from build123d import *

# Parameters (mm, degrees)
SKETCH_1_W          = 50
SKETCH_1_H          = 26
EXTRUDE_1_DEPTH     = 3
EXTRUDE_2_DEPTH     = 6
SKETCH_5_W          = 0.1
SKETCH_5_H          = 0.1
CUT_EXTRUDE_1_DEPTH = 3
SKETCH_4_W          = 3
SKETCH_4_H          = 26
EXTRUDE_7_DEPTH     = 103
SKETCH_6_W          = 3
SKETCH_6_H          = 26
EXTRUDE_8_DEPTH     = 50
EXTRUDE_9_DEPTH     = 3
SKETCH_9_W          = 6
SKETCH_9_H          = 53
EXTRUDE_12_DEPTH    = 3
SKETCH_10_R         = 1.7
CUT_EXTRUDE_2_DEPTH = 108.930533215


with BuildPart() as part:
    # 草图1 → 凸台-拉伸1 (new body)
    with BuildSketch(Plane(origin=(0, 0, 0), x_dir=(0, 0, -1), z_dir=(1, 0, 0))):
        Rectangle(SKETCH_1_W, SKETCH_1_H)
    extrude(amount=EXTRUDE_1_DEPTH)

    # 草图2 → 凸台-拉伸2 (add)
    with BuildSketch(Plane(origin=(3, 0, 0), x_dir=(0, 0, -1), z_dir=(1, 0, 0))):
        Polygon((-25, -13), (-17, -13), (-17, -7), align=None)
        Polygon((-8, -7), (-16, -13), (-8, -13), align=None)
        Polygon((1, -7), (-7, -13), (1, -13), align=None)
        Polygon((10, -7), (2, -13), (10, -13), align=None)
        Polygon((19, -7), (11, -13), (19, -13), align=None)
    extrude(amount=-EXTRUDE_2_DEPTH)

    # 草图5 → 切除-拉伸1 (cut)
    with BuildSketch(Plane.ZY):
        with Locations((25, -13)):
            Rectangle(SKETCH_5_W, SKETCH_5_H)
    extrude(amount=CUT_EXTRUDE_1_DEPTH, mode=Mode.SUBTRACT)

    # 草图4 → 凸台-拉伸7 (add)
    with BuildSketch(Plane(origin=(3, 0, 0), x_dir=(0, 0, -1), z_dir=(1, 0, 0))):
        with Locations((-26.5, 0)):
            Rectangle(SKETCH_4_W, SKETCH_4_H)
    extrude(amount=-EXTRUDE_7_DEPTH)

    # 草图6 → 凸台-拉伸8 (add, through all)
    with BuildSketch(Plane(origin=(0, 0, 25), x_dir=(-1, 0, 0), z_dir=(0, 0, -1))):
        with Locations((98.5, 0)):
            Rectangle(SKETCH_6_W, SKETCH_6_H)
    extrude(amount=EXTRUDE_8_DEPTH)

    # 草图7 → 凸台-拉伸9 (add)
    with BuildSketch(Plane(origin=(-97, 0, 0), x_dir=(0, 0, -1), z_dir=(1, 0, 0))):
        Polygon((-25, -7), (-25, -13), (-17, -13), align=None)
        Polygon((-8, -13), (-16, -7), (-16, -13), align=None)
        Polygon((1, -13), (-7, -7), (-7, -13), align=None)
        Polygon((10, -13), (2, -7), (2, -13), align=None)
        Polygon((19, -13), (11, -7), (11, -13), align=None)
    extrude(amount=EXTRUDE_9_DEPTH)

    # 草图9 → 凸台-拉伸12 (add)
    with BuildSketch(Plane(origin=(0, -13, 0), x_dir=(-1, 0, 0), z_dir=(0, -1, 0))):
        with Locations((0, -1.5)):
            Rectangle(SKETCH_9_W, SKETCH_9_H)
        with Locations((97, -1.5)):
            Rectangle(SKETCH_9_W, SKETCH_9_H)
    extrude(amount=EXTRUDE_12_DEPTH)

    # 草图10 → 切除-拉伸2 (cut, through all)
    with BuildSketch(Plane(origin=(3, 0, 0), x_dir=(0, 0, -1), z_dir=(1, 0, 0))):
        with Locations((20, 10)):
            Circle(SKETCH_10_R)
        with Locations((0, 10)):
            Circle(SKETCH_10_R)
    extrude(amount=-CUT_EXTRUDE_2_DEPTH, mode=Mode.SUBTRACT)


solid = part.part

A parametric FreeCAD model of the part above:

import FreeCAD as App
import Part
import Sketcher


def add_polygon(sketch, points):
    """Adds a closed chain of lines whose ends are joined by coincident constraints."""
    first, n = sketch.GeometryCount, len(points)
    for a, b in zip(points, points[1:] + points[:1]):
        sketch.addGeometry(Part.LineSegment(App.Vector(*a, 0), App.Vector(*b, 0)), False)
    for i in range(n):
        sketch.addConstraint(Sketcher.Constraint("Coincident", first + i, 2, first + (i + 1) % n, 1))

doc = App.newDocument("Part")
body = doc.addObject("PartDesign::Body", "Body")

sketch1 = body.newObject("Sketcher::SketchObject", "Sketch")
sketch1.AttachmentSupport = (doc.getObject("YZ_Plane"), [""])
sketch1.MapMode = "FlatFace"
add_polygon(sketch1, [(13, 25), (-13, 25), (-13, -25), (13, -25)])
sketch1.addConstraint(Sketcher.Constraint("Horizontal", 0))
sketch1.addConstraint(Sketcher.Constraint("Vertical", 1))
sketch1.addConstraint(Sketcher.Constraint("Horizontal", 2))
sketch1.addConstraint(Sketcher.Constraint("Vertical", 3))
sketch1.addConstraint(Sketcher.Constraint("Symmetric", 0, 2, 2, 2, -1, 1))
sketch1.addConstraint(Sketcher.Constraint("DistanceX", 0, 2, 0, 1, 26.0))
sketch1.addConstraint(Sketcher.Constraint("DistanceY", 1, 2, 1, 1, 50.0))
pad1 = body.newObject("PartDesign::Pad", "Pad")
pad1.Profile = sketch1
pad1.Length = 3

sketch2 = body.newObject("Sketcher::SketchObject", "Sketch001")
sketch2.AttachmentSupport = (doc.getObject("YZ_Plane"), [""])
sketch2.MapMode = "FlatFace"
sketch2.AttachmentOffset = App.Placement(App.Vector(0, 0, 3), App.Rotation())
add_polygon(sketch2, [(-13, 25), (-13, 17), (-7, 17)])
add_polygon(sketch2, [(-7, 8), (-13, 16), (-13, 8)])
add_polygon(sketch2, [(-7, -1), (-13, 7), (-13, -1)])
add_polygon(sketch2, [(-7, -10), (-13, -2), (-13, -10)])
add_polygon(sketch2, [(-7, -19), (-13, -11), (-13, -19)])
sketch2.addConstraint(Sketcher.Constraint("Vertical", 0))
sketch2.addConstraint(Sketcher.Constraint("Horizontal", 1))
sketch2.addConstraint(Sketcher.Constraint("Vertical", 4))
sketch2.addConstraint(Sketcher.Constraint("Horizontal", 5))
sketch2.addConstraint(Sketcher.Constraint("Vertical", 7))
sketch2.addConstraint(Sketcher.Constraint("Horizontal", 8))
sketch2.addConstraint(Sketcher.Constraint("Vertical", 10))
sketch2.addConstraint(Sketcher.Constraint("Horizontal", 11))
sketch2.addConstraint(Sketcher.Constraint("Vertical", 13))
sketch2.addConstraint(Sketcher.Constraint("Horizontal", 14))
sketch2.addConstraint(Sketcher.Constraint("Parallel", 2, 3))
sketch2.addConstraint(Sketcher.Constraint("Parallel", 3, 6))
sketch2.addConstraint(Sketcher.Constraint("Parallel", 6, 9))
sketch2.addConstraint(Sketcher.Constraint("Parallel", 9, 12))
sketch2.addConstraint(Sketcher.Constraint("Vertical", 2, 2, 3, 2))
sketch2.addConstraint(Sketcher.Constraint("Vertical", 1, 2, 5, 2))
sketch2.addConstraint(Sketcher.Constraint("Vertical", 4, 2, 6, 2))
sketch2.addConstraint(Sketcher.Constraint("Vertical", 5, 2, 8, 2))
sketch2.addConstraint(Sketcher.Constraint("Vertical", 7, 2, 9, 2))
sketch2.addConstraint(Sketcher.Constraint("Vertical", 8, 2, 11, 2))
sketch2.addConstraint(Sketcher.Constraint("Vertical", 10, 2, 12, 2))
sketch2.addConstraint(Sketcher.Constraint("Vertical", 11, 2, 14, 2))
sketch2.addConstraint(Sketcher.Constraint("DistanceX", 1, 1, 1, 2, 6.0))
sketch2.addConstraint(Sketcher.Constraint("DistanceY", 0, 2, 0, 1, 8.0))
sketch2.addConstraint(Sketcher.Constraint("DistanceX", 0, 2, -1, 1, 13.0))
sketch2.addConstraint(Sketcher.Constraint("DistanceY", -1, 1, 0, 2, 17.0))
sketch2.addConstraint(Sketcher.Constraint("DistanceY", -1, 1, 3, 2, 16.0))
sketch2.addConstraint(Sketcher.Constraint("DistanceY", -1, 1, 6, 2, 7.0))
sketch2.addConstraint(Sketcher.Constraint("DistanceY", 9, 2, -1, 1, 2.0))
sketch2.addConstraint(Sketcher.Constraint("DistanceY", 12, 2, -1, 1, 11.0))
pad2 = body.newObject("PartDesign::Pad", "Pad001")
pad2.Profile = sketch2
pad2.Length = 6
pad2.Reversed = True

sketch3 = body.newObject("Sketcher::SketchObject", "Sketch002")
sketch3.AttachmentSupport = (doc.getObject("YZ_Plane"), [""])
sketch3.MapMode = "FlatFace"
add_polygon(sketch3, [(-12.95, 24.95), (-13.05, 24.95), (-13.05, 25.05), (-12.95, 25.05)])
sketch3.addConstraint(Sketcher.Constraint("Horizontal", 0))
sketch3.addConstraint(Sketcher.Constraint("Vertical", 1))
sketch3.addConstraint(Sketcher.Constraint("Horizontal", 2))
sketch3.addConstraint(Sketcher.Constraint("Vertical", 3))
sketch3.addConstraint(Sketcher.Constraint("Equal", 2, 1))
sketch3.addConstraint(Sketcher.Constraint("DistanceX", 0, 2, 0, 1, 0.1))
sketch3.addConstraint(Sketcher.Constraint("DistanceX", 0, 2, -1, 1, 13.05))
sketch3.addConstraint(Sketcher.Constraint("DistanceY", -1, 1, 0, 2, 24.95))
pocket1 = body.newObject("PartDesign::Pocket", "Pocket")
pocket1.Profile = sketch3
pocket1.Length = 3

sketch4 = body.newObject("Sketcher::SketchObject", "Sketch003")
sketch4.AttachmentSupport = (doc.getObject("YZ_Plane"), [""])
sketch4.MapMode = "FlatFace"
sketch4.AttachmentOffset = App.Placement(App.Vector(0, 0, 3), App.Rotation())
add_polygon(sketch4, [(13, 28), (-13, 28), (-13, 25), (13, 25)])
sketch4.addConstraint(Sketcher.Constraint("Horizontal", 0))
sketch4.addConstraint(Sketcher.Constraint("Vertical", 1))
sketch4.addConstraint(Sketcher.Constraint("Horizontal", 2))
sketch4.addConstraint(Sketcher.Constraint("Vertical", 3))
sketch4.addConstraint(Sketcher.Constraint("DistanceX", 0, 2, 0, 1, 26.0))
sketch4.addConstraint(Sketcher.Constraint("DistanceY", 1, 2, 1, 1, 3.0))
sketch4.addConstraint(Sketcher.Constraint("DistanceX", 0, 2, -1, 1, 13.0))
sketch4.addConstraint(Sketcher.Constraint("DistanceY", -1, 1, 0, 2, 28.0))
pad3 = body.newObject("PartDesign::Pad", "Pad002")
pad3.Profile = sketch4
pad3.Length = 103
pad3.Reversed = True

sketch5 = body.newObject("Sketcher::SketchObject", "Sketch004")
sketch5.AttachmentSupport = (doc.getObject("XY_Plane"), [""])
sketch5.MapMode = "FlatFace"
sketch5.AttachmentOffset = App.Placement(App.Vector(0, 0, 25), App.Rotation())
add_polygon(sketch5, [(-97, 13), (-97, -13), (-100, -13), (-100, 13)])
sketch5.addConstraint(Sketcher.Constraint("Vertical", 0))
sketch5.addConstraint(Sketcher.Constraint("Horizontal", 1))
sketch5.addConstraint(Sketcher.Constraint("Vertical", 2))
sketch5.addConstraint(Sketcher.Constraint("Horizontal", 3))
sketch5.addConstraint(Sketcher.Constraint("DistanceX", 1, 2, 1, 1, 3.0))
sketch5.addConstraint(Sketcher.Constraint("DistanceY", 0, 2, 0, 1, 26.0))
sketch5.addConstraint(Sketcher.Constraint("DistanceX", 0, 2, -1, 1, 97.0))
sketch5.addConstraint(Sketcher.Constraint("DistanceY", 0, 2, -1, 1, 13.0))
pad4 = body.newObject("PartDesign::Pad", "Pad003")
pad4.Profile = sketch5
pad4.Length = 50
pad4.Reversed = True

sketch6 = body.newObject("Sketcher::SketchObject", "Sketch005")
sketch6.AttachmentSupport = (doc.getObject("YZ_Plane"), [""])
sketch6.MapMode = "FlatFace"
sketch6.AttachmentOffset = App.Placement(App.Vector(0, 0, -97), App.Rotation())
add_polygon(sketch6, [(-7, 25), (-13, 25), (-13, 17)])
add_polygon(sketch6, [(-13, 8), (-7, 16), (-13, 16)])
add_polygon(sketch6, [(-13, -1), (-7, 7), (-13, 7)])
add_polygon(sketch6, [(-13, -10), (-7, -2), (-13, -2)])
add_polygon(sketch6, [(-13, -19), (-7, -11), (-13, -11)])
sketch6.addConstraint(Sketcher.Constraint("Horizontal", 0))
sketch6.addConstraint(Sketcher.Constraint("Vertical", 1))
sketch6.addConstraint(Sketcher.Constraint("Horizontal", 4))
sketch6.addConstraint(Sketcher.Constraint("Vertical", 5))
sketch6.addConstraint(Sketcher.Constraint("Horizontal", 7))
sketch6.addConstraint(Sketcher.Constraint("Vertical", 8))
sketch6.addConstraint(Sketcher.Constraint("Horizontal", 10))
sketch6.addConstraint(Sketcher.Constraint("Vertical", 11))
sketch6.addConstraint(Sketcher.Constraint("Horizontal", 13))
sketch6.addConstraint(Sketcher.Constraint("Vertical", 14))
sketch6.addConstraint(Sketcher.Constraint("Parallel", 2, 3))
sketch6.addConstraint(Sketcher.Constraint("Parallel", 3, 6))
sketch6.addConstraint(Sketcher.Constraint("Parallel", 6, 9))
sketch6.addConstraint(Sketcher.Constraint("Parallel", 9, 12))
sketch6.addConstraint(Sketcher.Constraint("Vertical", 2, 2, 3, 2))
sketch6.addConstraint(Sketcher.Constraint("Vertical", 1, 2, 4, 2))
sketch6.addConstraint(Sketcher.Constraint("Vertical", 3, 2, 6, 2))
sketch6.addConstraint(Sketcher.Constraint("Vertical", 5, 2, 7, 2))
sketch6.addConstraint(Sketcher.Constraint("Vertical", 6, 2, 9, 2))
sketch6.addConstraint(Sketcher.Constraint("Vertical", 8, 2, 10, 2))
sketch6.addConstraint(Sketcher.Constraint("Vertical", 9, 2, 12, 2))
sketch6.addConstraint(Sketcher.Constraint("Vertical", 11, 2, 13, 2))
sketch6.addConstraint(Sketcher.Constraint("DistanceX", 0, 2, 0, 1, 6.0))
sketch6.addConstraint(Sketcher.Constraint("DistanceY", 1, 2, 1, 1, 8.0))
sketch6.addConstraint(Sketcher.Constraint("DistanceX", 0, 2, -1, 1, 13.0))
sketch6.addConstraint(Sketcher.Constraint("DistanceY", -1, 1, 0, 2, 25.0))
sketch6.addConstraint(Sketcher.Constraint("DistanceY", -1, 1, 3, 2, 16.0))
sketch6.addConstraint(Sketcher.Constraint("DistanceY", -1, 1, 6, 2, 7.0))
sketch6.addConstraint(Sketcher.Constraint("DistanceY", 9, 2, -1, 1, 2.0))
sketch6.addConstraint(Sketcher.Constraint("DistanceY", 12, 2, -1, 1, 11.0))
pad5 = body.newObject("PartDesign::Pad", "Pad004")
pad5.Profile = sketch6
pad5.Length = 3

sketch7 = body.newObject("Sketcher::SketchObject", "Sketch006")
sketch7.AttachmentSupport = (doc.getObject("XZ_Plane"), [""])
sketch7.MapMode = "FlatFace"
sketch7.AttachmentOffset = App.Placement(App.Vector(0, 0, 13), App.Rotation())
add_polygon(sketch7, [(3, -25), (3, 28), (-3, 28), (-3, -25)])
add_polygon(sketch7, [(-94, -25), (-94, 28), (-100, 28), (-100, -25)])
sketch7.addConstraint(Sketcher.Constraint("Vertical", 0))
sketch7.addConstraint(Sketcher.Constraint("Horizontal", 1))
sketch7.addConstraint(Sketcher.Constraint("Vertical", 2))
sketch7.addConstraint(Sketcher.Constraint("Horizontal", 3))
sketch7.addConstraint(Sketcher.Constraint("Vertical", 4))
sketch7.addConstraint(Sketcher.Constraint("Horizontal", 5))
sketch7.addConstraint(Sketcher.Constraint("Vertical", 6))
sketch7.addConstraint(Sketcher.Constraint("Horizontal", 7))
sketch7.addConstraint(Sketcher.Constraint("Horizontal", 1, 2, 4, 2))
sketch7.addConstraint(Sketcher.Constraint("Horizontal", 3, 2, 6, 2))
sketch7.addConstraint(Sketcher.Constraint("Equal", 3, 5))
sketch7.addConstraint(Sketcher.Constraint("DistanceX", 1, 2, 1, 1, 6.0))
sketch7.addConstraint(Sketcher.Constraint("DistanceY", 0, 1, 0, 2, 53.0))
sketch7.addConstraint(Sketcher.Constraint("DistanceX", -1, 1, 0, 2, 3.0))
sketch7.addConstraint(Sketcher.Constraint("DistanceY", -1, 1, 0, 2, 28.0))
sketch7.addConstraint(Sketcher.Constraint("DistanceX", 4, 2, -1, 1, 94.0))
pad6 = body.newObject("PartDesign::Pad", "Pad005")
pad6.Profile = sketch7
pad6.Length = 3

sketch8 = body.newObject("Sketcher::SketchObject", "Sketch007")
sketch8.AttachmentSupport = (doc.getObject("YZ_Plane"), [""])
sketch8.MapMode = "FlatFace"
sketch8.AttachmentOffset = App.Placement(App.Vector(0, 0, 3), App.Rotation())
sketch8.addGeometry(Part.Circle(App.Vector(10, -20, 0), App.Vector(0, 0, 1), 1.7), False)
sketch8.addGeometry(Part.Circle(App.Vector(10, 0, 0), App.Vector(0, 0, 1), 1.7), False)
sketch8.addConstraint(Sketcher.Constraint("Equal", 0, 1))
sketch8.addConstraint(Sketcher.Constraint("PointOnObject", 1, 3, -1))
sketch8.addConstraint(Sketcher.Constraint("Vertical", 0, 3, 1, 3))
sketch8.addConstraint(Sketcher.Constraint("Diameter", 0, 3.4))
sketch8.addConstraint(Sketcher.Constraint("DistanceX", -1, 1, 0, 3, 10.0))
sketch8.addConstraint(Sketcher.Constraint("DistanceY", 0, 3, -1, 1, 20.0))
pocket2 = body.newObject("PartDesign::Pocket", "Pocket001")
pocket2.Profile = sketch8
pocket2.Type = "ThroughAll"

doc.recompute()
